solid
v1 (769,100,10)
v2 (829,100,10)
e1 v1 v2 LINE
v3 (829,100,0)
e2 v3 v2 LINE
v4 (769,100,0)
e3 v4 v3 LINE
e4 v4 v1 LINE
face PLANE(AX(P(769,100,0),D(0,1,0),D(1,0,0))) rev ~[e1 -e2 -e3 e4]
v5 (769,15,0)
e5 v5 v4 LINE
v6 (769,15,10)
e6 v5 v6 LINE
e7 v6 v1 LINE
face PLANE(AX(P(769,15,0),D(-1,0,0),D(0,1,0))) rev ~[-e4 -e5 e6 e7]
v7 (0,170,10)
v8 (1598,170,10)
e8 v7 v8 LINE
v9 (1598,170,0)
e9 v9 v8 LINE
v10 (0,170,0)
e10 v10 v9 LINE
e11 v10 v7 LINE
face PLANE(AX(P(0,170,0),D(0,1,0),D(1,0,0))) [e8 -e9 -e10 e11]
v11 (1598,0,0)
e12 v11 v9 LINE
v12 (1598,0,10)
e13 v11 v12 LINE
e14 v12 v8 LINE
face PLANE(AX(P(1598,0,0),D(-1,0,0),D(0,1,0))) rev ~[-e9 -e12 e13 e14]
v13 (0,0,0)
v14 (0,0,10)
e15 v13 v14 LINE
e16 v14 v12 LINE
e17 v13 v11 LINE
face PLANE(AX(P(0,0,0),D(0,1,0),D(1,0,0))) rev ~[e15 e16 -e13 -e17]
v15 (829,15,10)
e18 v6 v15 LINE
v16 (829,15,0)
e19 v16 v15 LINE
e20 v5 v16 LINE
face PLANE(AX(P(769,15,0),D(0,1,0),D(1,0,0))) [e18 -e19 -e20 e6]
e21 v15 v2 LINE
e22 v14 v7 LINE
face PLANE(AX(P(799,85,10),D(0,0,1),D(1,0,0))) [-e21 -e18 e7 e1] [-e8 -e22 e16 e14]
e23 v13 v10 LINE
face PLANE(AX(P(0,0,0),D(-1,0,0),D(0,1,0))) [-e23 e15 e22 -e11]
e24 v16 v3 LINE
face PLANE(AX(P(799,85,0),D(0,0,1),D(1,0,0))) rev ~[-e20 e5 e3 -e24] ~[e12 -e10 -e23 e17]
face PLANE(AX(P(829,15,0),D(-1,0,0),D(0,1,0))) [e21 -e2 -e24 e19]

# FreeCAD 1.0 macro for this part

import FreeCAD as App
import Part
import Sketcher
from FreeCAD import Vector


def add_polygon(sketch, points):
    """Adds a closed chain of lines whose ends are joined by coincident constraints."""
    first, n = sketch.GeometryCount, len(points)
    for a, b in zip(points, points[1:] + points[:1]):
        sketch.addGeometry(Part.LineSegment(App.Vector(*a, 0), App.Vector(*b, 0)), False)
    for i in range(n):
        sketch.addConstraint(Sketcher.Constraint("Coincident", first + i, 2, first + (i + 1) % n, 1))

doc = App.newDocument("Part")
params = doc.addObject("Spreadsheet::Sheet", "Params")
for row, (alias, value) in enumerate([
    ("sketch1_width", "1598 mm"),
    ("sketch1_width2", "60 mm"),
    ("sketch1_height", "170 mm"),
    ("sketch1_height2", "85 mm"),
    ("pad1_length", "10 mm"),
], start=1):
    params.set(f"A{row}", alias)
    params.set(f"B{row}", "=" + value)
    params.setAlias(f"B{row}", alias)

body = doc.addObject("PartDesign::Body", "Body")

# Sketch on XY plane
sketch1 = body.newObject("Sketcher::SketchObject", "Sketch")
sketch1.AttachmentSupport = (doc.getObject("XY_Plane"), [""])
sketch1.MapMode = "FlatFace"
add_polygon(sketch1, [(0, 170), (0, 0), (1598, 0), (1598, 170)])  # lines 0-3
add_polygon(sketch1, [(829, 15), (769, 15), (769, 100), (829, 100)])  # lines 4-7
sketch1.addConstraint(Sketcher.Constraint("Vertical", 0))
sketch1.addConstraint(Sketcher.Constraint("Horizontal", 1))
sketch1.addConstraint(Sketcher.Constraint("Vertical", 2))
sketch1.addConstraint(Sketcher.Constraint("Horizontal", 3))
sketch1.addConstraint(Sketcher.Constraint("Horizontal", 4))
sketch1.addConstraint(Sketcher.Constraint("Vertical", 5))
sketch1.addConstraint(Sketcher.Constraint("Horizontal", 6))
sketch1.addConstraint(Sketcher.Constraint("Vertical", 7))
sketch1.addConstraint(Sketcher.Constraint("Coincident", 0, 2, -1, 1))
sketch1.addConstraint(Sketcher.Constraint("DistanceX", 1, 1, 1, 2, 1598.0))
sketch1.addConstraint(Sketcher.Constraint("DistanceX", 4, 2, 4, 1, 60.0))
sketch1.addConstraint(Sketcher.Constraint("DistanceY", 0, 2, 0, 1, 170.0))
sketch1.addConstraint(Sketcher.Constraint("DistanceY", 5, 1, 5, 2, 85.0))
sketch1.addConstraint(Sketcher.Constraint("DistanceX", -1, 1, 4, 2, 769.0))
sketch1.addConstraint(Sketcher.Constraint("DistanceY", -1, 1, 4, 2, 15.0))
sketch1.setExpression("Constraints[17]", "Params.sketch1_width")
sketch1.setExpression("Constraints[18]", "Params.sketch1_width2")
sketch1.setExpression("Constraints[19]", "Params.sketch1_height")
sketch1.setExpression("Constraints[20]", "Params.sketch1_height2")
pad1 = body.newObject("PartDesign::Pad", "Pad")
pad1.Profile = sketch1
pad1.setExpression("Length", "Params.pad1_length")

doc.recompute()
